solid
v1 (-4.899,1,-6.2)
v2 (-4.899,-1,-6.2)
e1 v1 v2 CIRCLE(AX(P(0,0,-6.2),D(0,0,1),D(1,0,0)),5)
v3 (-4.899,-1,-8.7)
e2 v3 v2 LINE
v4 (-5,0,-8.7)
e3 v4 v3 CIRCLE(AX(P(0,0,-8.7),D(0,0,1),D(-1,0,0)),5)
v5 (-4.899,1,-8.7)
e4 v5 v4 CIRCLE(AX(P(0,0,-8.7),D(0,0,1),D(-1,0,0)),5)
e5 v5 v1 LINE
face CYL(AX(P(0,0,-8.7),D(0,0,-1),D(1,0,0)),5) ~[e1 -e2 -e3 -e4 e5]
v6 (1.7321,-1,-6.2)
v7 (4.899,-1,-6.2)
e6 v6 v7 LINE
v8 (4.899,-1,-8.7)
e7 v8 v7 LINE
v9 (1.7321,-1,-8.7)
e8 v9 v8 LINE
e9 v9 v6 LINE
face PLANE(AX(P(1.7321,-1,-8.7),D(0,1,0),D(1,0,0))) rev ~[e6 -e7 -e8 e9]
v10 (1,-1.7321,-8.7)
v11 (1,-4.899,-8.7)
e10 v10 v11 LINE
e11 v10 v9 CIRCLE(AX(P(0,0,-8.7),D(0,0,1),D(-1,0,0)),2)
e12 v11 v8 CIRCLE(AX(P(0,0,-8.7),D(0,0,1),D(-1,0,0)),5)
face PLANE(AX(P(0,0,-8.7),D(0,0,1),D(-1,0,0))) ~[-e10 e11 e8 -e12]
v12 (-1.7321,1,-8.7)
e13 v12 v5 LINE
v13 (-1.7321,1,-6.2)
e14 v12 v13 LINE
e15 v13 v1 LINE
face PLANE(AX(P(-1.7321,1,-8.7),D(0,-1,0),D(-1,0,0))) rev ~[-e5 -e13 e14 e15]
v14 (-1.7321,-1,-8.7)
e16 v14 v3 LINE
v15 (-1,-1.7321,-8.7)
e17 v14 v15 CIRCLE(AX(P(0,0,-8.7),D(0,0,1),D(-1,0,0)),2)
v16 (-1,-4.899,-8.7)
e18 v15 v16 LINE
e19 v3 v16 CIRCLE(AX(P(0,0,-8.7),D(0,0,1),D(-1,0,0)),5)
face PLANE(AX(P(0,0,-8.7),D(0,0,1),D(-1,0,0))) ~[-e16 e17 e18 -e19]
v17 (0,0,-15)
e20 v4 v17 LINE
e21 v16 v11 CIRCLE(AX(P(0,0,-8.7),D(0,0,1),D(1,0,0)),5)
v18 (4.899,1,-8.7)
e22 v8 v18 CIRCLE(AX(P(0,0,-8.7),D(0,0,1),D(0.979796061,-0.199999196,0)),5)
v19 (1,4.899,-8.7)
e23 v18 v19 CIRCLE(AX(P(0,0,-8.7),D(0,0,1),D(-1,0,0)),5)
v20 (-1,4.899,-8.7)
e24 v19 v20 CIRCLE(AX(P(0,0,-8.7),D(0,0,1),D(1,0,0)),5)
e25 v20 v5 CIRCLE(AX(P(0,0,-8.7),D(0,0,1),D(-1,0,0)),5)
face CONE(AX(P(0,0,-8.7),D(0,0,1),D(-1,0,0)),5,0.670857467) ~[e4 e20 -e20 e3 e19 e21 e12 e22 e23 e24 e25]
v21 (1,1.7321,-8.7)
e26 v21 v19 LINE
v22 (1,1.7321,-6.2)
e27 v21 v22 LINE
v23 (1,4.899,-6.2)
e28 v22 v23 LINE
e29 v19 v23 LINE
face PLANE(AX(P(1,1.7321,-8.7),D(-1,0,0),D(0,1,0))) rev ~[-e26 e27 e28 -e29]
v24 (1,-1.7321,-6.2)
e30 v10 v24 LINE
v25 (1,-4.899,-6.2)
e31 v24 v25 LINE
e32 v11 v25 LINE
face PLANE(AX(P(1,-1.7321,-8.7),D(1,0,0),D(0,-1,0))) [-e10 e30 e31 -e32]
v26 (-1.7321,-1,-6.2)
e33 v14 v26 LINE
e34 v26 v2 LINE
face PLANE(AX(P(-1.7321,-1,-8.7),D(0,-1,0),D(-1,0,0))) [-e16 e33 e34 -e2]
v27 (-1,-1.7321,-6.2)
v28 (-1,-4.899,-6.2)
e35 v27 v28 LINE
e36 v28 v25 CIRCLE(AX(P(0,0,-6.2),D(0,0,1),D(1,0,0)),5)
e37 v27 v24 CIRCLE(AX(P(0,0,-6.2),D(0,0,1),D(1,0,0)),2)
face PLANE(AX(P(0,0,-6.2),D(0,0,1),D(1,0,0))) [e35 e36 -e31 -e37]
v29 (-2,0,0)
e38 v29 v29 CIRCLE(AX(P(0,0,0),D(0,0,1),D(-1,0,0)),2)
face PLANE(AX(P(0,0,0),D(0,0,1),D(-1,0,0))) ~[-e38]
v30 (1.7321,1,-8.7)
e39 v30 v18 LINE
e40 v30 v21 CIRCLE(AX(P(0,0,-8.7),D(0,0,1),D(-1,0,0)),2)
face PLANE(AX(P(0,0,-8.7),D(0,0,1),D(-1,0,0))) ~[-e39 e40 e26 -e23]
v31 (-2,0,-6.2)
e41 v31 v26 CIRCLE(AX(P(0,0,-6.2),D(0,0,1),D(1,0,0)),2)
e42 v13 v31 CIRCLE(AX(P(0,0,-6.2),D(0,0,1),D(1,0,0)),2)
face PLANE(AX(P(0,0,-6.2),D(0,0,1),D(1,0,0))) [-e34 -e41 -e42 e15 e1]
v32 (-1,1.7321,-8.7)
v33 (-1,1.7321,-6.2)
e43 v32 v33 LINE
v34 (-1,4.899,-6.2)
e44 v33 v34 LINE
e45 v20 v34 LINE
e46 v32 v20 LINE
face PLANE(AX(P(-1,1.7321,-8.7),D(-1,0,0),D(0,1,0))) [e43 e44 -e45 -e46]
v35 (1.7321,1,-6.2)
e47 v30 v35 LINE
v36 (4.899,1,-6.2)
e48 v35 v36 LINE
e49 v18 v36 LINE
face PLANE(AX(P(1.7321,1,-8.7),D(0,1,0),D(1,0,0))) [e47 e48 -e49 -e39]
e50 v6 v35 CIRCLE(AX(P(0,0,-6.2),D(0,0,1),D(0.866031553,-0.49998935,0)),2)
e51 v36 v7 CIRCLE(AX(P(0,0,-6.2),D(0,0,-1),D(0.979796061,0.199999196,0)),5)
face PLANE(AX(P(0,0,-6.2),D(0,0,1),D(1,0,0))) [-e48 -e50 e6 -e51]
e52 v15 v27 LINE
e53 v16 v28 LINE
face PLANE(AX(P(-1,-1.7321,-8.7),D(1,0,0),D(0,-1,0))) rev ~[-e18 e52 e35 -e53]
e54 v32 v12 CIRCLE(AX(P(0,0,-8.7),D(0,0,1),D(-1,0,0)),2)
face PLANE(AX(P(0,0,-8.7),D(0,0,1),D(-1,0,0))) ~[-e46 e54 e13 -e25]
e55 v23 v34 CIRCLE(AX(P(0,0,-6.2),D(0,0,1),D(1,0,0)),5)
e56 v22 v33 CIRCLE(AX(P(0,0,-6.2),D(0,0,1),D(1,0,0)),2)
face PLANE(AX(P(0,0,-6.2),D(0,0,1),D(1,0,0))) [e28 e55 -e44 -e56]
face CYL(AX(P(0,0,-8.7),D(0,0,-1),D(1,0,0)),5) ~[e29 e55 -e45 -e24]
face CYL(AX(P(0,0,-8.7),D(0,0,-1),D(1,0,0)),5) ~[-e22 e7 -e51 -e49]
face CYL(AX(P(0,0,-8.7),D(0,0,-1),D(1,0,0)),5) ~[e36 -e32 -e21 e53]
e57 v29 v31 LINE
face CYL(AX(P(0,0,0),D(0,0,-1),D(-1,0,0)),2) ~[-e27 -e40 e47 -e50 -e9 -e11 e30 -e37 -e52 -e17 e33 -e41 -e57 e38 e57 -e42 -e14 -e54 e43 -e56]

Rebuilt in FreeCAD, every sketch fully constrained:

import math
import FreeCAD as App
import Part
import Sketcher
from FreeCAD import Vector
Q = App.Units.Quantity

doc = App.newDocument("Part")
body = doc.addObject("PartDesign::Body", "Body")

# Sketch on XZ plane
sketch1 = body.newObject("Sketcher::SketchObject", "Sketch")
sketch1.AttachmentSupport = (doc.getObject("XZ_Plane"), [""])
sketch1.MapMode = "FlatFace"
sketch1.addGeometry(Part.LineSegment(Vector(-2, 0, 0), Vector(0, 0, 0)), False)
sketch1.addGeometry(Part.LineSegment(Vector(0, 0, 0), Vector(0, -15, 0)), False)
sketch1.addGeometry(Part.LineSegment(Vector(0, -15, 0), Vector(-5, -8.7, 0)), False)
sketch1.addGeometry(Part.LineSegment(Vector(-5, -8.7, 0), Vector(-2, -8.7, 0)), False)
sketch1.addGeometry(Part.LineSegment(Vector(-2, -8.7, 0), Vector(-2, 0, 0)), False)
sketch1.addConstraint(Sketcher.Constraint("Coincident", 0, 2, 1, 1))
sketch1.addConstraint(Sketcher.Constraint("Coincident", 1, 2, 2, 1))
sketch1.addConstraint(Sketcher.Constraint("Coincident", 2, 2, 3, 1))
sketch1.addConstraint(Sketcher.Constraint("Coincident", 3, 2, 4, 1))
sketch1.addConstraint(Sketcher.Constraint("Coincident", 4, 2, 0, 1))
sketch1.addConstraint(Sketcher.Constraint("Horizontal", 0))
sketch1.addConstraint(Sketcher.Constraint("Vertical", 1))
sketch1.addConstraint(Sketcher.Constraint("Horizontal", 3))
sketch1.addConstraint(Sketcher.Constraint("Vertical", 4))
sketch1.addConstraint(Sketcher.Constraint("Coincident", 0, 2, -1, 1))
sketch1.addConstraint(Sketcher.Constraint("DistanceX", 0, 1, 0, 2, Q("2 mm")))
sketch1.addConstraint(Sketcher.Constraint("DistanceY", 1, 2, 1, 1, Q("15 mm")))
sketch1.addConstraint(Sketcher.Constraint("DistanceY", 4, 1, 4, 2, Q("8.7 mm")))
sketch1.addConstraint(Sketcher.Constraint("DistanceX", 2, 2, -1, 1, Q("5 mm")))
revolution = body.newObject("PartDesign::Revolution", "Revolution")
revolution.Profile = sketch1
revolution.ReferenceAxis = (sketch1, ["V_Axis"])
revolution.Angle = 360

# Sketch on XY plane
sketch2 = body.newObject("Sketcher::SketchObject", "Sketch001")
sketch2.AttachmentSupport = (doc.getObject("XY_Plane"), [""])
sketch2.MapMode = "FlatFace"
sketch2.AttachmentOffset = App.Placement(Vector(0, 0, -8.7), App.Rotation())
sketch2.addGeometry(Part.ArcOfCircle(Part.Circle(Vector(0, 0, 0), Vector(0, 0, 1), 2), math.radians(-30), math.radians(30)), False)
sketch2.addGeometry(Part.LineSegment(Vector(1.7, -1, 0), Vector(4.9, -1, 0)), False)
sketch2.addGeometry(Part.ArcOfCircle(Part.Circle(Vector(0, 0, 0), Vector(0, 0, 1), 5), math.radians(-12), math.radians(12)), False)
sketch2.addGeometry(Part.LineSegment(Vector(4.9, 1, 0), Vector(1.7, 1, 0)), False)
sketch2.addGeometry(Part.ArcOfCircle(Part.Circle(Vector(0, 0, 0), Vector(0, 0, 1), 2), math.radians(60), math.radians(120)), False)
sketch2.addGeometry(Part.LineSegment(Vector(1, 1.7, 0), Vector(1, 4.9, 0)), False)
sketch2.addGeometry(Part.ArcOfCircle(Part.Circle(Vector(0, 0, 0), Vector(0, 0, 1), 5), math.radians(78), math.radians(102)), False)
sketch2.addGeometry(Part.LineSegment(Vector(-1, 4.9, 0), Vector(-1, 1.7, 0)), False)
sketch2.addGeometry(Part.LineSegment(Vector(1, -4.9, 0), Vector(1, -1.7, 0)), False)
sketch2.addGeometry(Part.ArcOfCircle(Part.Circle(Vector(0, 0, 0), Vector(0, 0, 1), 2), math.radians(-120), math.radians(-60)), False)
sketch2.addGeometry(Part.LineSegment(Vector(-1, -1.7, 0), Vector(-1, -4.9, 0)), False)
sketch2.addGeometry(Part.ArcOfCircle(Part.Circle(Vector(0, 0, 0), Vector(0, 0, 1), 5), math.radians(-102), math.radians(-78)), False)
sketch2.addGeometry(Part.ArcOfCircle(Part.Circle(Vector(0, 0, 0), Vector(0, 0, 1), 2), math.radians(150), math.radians(210)), False)
sketch2.addGeometry(Part.LineSegment(Vector(-1.7, 1, 0), Vector(-4.9, 1, 0)), False)
sketch2.addGeometry(Part.ArcOfCircle(Part.Circle(Vector(0, 0, 0), Vector(0, 0, 1), 5), math.radians(168), math.radians(192)), False)
sketch2.addGeometry(Part.LineSegment(Vector(-4.9, -1, 0), Vector(-1.7, -1, 0)), False)
sketch2.addConstraint(Sketcher.Constraint("Coincident", 0, 1, 1, 1))
sketch2.addConstraint(Sketcher.Constraint("Coincident", 1, 2, 2, 1))
sketch2.addConstraint(Sketcher.Constraint("Coincident", 2, 2, 3, 1))
sketch2.addConstraint(Sketcher.Constraint("Coincident", 3, 2, 0, 2))
sketch2.addConstraint(Sketcher.Constraint("Coincident", 4, 1, 5, 1))
sketch2.addConstraint(Sketcher.Constraint("Coincident", 5, 2, 6, 1))
sketch2.addConstraint(Sketcher.Constraint("Coincident", 6, 2, 7, 1))
sketch2.addConstraint(Sketcher.Constraint("Coincident", 7, 2, 4, 2))
sketch2.addConstraint(Sketcher.Constraint("Coincident", 8, 2, 9, 2))
sketch2.addConstraint(Sketcher.Constraint("Coincident", 9, 1, 10, 1))
sketch2.addConstraint(Sketcher.Constraint("Coincident", 10, 2, 11, 1))
sketch2.addConstraint(Sketcher.Constraint("Coincident", 11, 2, 8, 1))
sketch2.addConstraint(Sketcher.Constraint("Coincident", 12, 1, 13, 1))
sketch2.addConstraint(Sketcher.Constraint("Coincident", 13, 2, 14, 1))
sketch2.addConstraint(Sketcher.Constraint("Coincident", 14, 2, 15, 1))
sketch2.addConstraint(Sketcher.Constraint("Coincident", 15, 2, 12, 2))
sketch2.addConstraint(Sketcher.Constraint("Horizontal", 1))
sketch2.addConstraint(Sketcher.Constraint("Horizontal", 3))
sketch2.addConstraint(Sketcher.Constraint("Vertical", 5))
sketch2.addConstraint(Sketcher.Constraint("Vertical", 7))
sketch2.addConstraint(Sketcher.Constraint("Vertical", 8))
sketch2.addConstraint(Sketcher.Constraint("Vertical", 10))
sketch2.addConstraint(Sketcher.Constraint("Horizontal", 13))
sketch2.addConstraint(Sketcher.Constraint("Horizontal", 15))
sketch2.addConstraint(Sketcher.Constraint("Coincident", 0, 3, -1, 1))
sketch2.addConstraint(Sketcher.Constraint("Coincident", 2, 3, -1, 1))
sketch2.addConstraint(Sketcher.Constraint("Coincident", 4, 3, -1, 1))
sketch2.addConstraint(Sketcher.Constraint("Coincident", 6, 3, -1, 1))
sketch2.addConstraint(Sketcher.Constraint("Coincident", 9, 3, -1, 1))
sketch2.addConstraint(Sketcher.Constraint("Coincident", 11, 3, -1, 1))
sketch2.addConstraint(Sketcher.Constraint("Coincident", 12, 3, -1, 1))
sketch2.addConstraint(Sketcher.Constraint("Coincident", 14, 3, -1, 1))
sketch2.addConstraint(Sketcher.Constraint("Equal", 0, 4))
sketch2.addConstraint(Sketcher.Constraint("Equal", 2, 6))
sketch2.addConstraint(Sketcher.Constraint("Equal", 4, 9))
sketch2.addConstraint(Sketcher.Constraint("Equal", 6, 11))
sketch2.addConstraint(Sketcher.Constraint("Equal", 9, 12))
sketch2.addConstraint(Sketcher.Constraint("Equal", 11, 14))
sketch2.addConstraint(Sketcher.Constraint("Horizontal", 5, 2, 6, 2))
sketch2.addConstraint(Sketcher.Constraint("Horizontal", 8, 2, 9, 1))
sketch2.addConstraint(Sketcher.Constraint("Horizontal", 3, 2, 12, 1))
sketch2.addConstraint(Sketcher.Constraint("Horizontal", 1, 2, 14, 2))
sketch2.addConstraint(Sketcher.Constraint("Vertical", 1, 2, 2, 2))
sketch2.addConstraint(Sketcher.Constraint("Vertical", 5, 2, 8, 2))
sketch2.addConstraint(Sketcher.Constraint("Equal", 15, 5))
sketch2.addConstraint(Sketcher.Constraint("DistanceY", 0, 1, -1, 1, Q("1 mm")))
sketch2.addConstraint(Sketcher.Constraint("Radius", 0, Q("2 mm")))
sketch2.addConstraint(Sketcher.Constraint("Radius", 2, Q("5 mm")))
pad1 = body.newObject("PartDesign::Pad", "Pad")
pad1.Profile = sketch2
pad1.Length = 2.5

doc.recompute()
